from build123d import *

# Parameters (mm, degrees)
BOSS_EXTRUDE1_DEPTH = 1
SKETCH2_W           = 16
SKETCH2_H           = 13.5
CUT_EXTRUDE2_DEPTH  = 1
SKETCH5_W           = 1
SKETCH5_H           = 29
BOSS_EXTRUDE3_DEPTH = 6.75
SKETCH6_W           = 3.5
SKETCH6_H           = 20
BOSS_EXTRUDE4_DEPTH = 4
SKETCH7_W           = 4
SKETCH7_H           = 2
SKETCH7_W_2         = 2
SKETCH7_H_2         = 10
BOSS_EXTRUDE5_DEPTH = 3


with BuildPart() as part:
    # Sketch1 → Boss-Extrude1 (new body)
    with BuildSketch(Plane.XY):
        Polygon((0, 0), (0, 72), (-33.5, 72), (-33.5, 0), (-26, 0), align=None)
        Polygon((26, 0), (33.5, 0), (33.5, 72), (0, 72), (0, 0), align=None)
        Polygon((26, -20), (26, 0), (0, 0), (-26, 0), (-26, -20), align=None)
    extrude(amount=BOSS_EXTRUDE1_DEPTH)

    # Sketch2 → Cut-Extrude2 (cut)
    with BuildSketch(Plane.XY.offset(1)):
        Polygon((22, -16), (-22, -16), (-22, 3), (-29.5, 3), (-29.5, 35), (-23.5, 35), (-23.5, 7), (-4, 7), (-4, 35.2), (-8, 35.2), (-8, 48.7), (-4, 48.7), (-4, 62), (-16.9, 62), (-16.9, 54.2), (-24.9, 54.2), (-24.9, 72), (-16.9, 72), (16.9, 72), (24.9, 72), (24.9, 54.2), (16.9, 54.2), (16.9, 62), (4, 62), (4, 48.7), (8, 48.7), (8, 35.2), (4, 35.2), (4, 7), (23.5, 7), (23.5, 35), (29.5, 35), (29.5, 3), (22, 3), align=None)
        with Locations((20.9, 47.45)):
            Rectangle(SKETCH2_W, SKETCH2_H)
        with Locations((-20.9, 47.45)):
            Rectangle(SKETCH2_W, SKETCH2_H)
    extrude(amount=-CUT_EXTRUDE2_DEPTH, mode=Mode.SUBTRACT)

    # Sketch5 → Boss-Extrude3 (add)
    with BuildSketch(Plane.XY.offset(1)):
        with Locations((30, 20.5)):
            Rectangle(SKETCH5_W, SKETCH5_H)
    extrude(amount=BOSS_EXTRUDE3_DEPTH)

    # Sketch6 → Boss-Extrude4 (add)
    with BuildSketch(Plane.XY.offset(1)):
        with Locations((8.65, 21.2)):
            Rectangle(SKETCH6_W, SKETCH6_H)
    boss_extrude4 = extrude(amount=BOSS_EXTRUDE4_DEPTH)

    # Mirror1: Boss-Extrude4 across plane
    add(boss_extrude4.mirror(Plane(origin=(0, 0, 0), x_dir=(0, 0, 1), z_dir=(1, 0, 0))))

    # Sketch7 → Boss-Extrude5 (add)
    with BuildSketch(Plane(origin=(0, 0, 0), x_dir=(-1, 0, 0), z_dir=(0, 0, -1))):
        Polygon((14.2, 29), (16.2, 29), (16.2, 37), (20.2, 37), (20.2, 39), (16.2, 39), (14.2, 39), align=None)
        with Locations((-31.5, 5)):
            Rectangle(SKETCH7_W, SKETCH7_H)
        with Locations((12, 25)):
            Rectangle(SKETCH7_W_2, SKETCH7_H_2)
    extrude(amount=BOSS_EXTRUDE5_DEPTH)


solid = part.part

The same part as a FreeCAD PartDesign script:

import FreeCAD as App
import Part
import Sketcher
from FreeCAD import Vector
Q = App.Units.Quantity


def add_polygon(sketch, points):
    """Adds a closed chain of lines whose ends are joined by coincident constraints."""
    first, n = sketch.GeometryCount, len(points)
    for a, b in zip(points, points[1:] + points[:1]):
        sketch.addGeometry(Part.LineSegment(App.Vector(*a, 0), App.Vector(*b, 0)), False)
    for i in range(n):
        sketch.addConstraint(Sketcher.Constraint("Coincident", first + i, 2, first + (i + 1) % n, 1))

doc = App.newDocument("Part")
params = doc.addObject("Spreadsheet::Sheet", "Params")
for row, (alias, value) in enumerate([
    ("sketch1_width", "52 mm"),
    ("sketch1_width2", "67 mm"),
    ("sketch1_height", "72 mm"),
    ("sketch1_height2", "20 mm"),
    ("pad1_length", "1 mm"),
    ("sketch2_width", "44 mm"),
    ("sketch2_width2", "6 mm"),
    ("sketch2_width3", "4 mm"),
    ("sketch2_width4", "16 mm"),
    ("sketch2_height", "19 mm"),
    ("pocket1_length", "1 mm"),
    ("sketch3_width", "1 mm"),
    ("sketch3_height", "29 mm"),
    ("pad2_length", "6.75 mm"),
    ("sketch4_height", "20 mm"),
    ("sketch4_width", "3.5 mm"),
    ("pad3_length", "4 mm"),
    ("sketch5_width", "2 mm"),
    ("sketch5_width2", "4 mm"),
    ("sketch5_height", "8 mm"),
    ("pad4_length", "3 mm"),
], start=1):
    params.set(f"A{row}", alias)
    params.set(f"B{row}", "=" + value)
    params.setAlias(f"B{row}", alias)

body = doc.addObject("PartDesign::Body", "Body")

# Sketch on XY plane
sketch1 = body.newObject("Sketcher::SketchObject", "Sketch")
sketch1.AttachmentSupport = (doc.getObject("XY_Plane"), [""])
sketch1.MapMode = "FlatFace"
add_polygon(sketch1, [(-33.5, 72), (-33.5, 0), (-26, 0), (-26, -20), (26, -20), (26, 0), (33.5, 0), (33.5, 72)])  # lines 0-7
sketch1.addConstraint([
    Sketcher.Constraint("Vertical", 0),
    Sketcher.Constraint("Horizontal", 1),
    Sketcher.Constraint("Vertical", 2),
    Sketcher.Constraint("Horizontal", 3),
    Sketcher.Constraint("Vertical", 4),
    Sketcher.Constraint("Horizontal", 5),
    Sketcher.Constraint("Vertical", 6),
    Sketcher.Constraint("Horizontal", 7),
    Sketcher.Constraint("Symmetric", 1, 2, 4, 2, -1, 1),
    Sketcher.Constraint("Symmetric", 0, 2, 5, 2, -2),
    Sketcher.Constraint("DistanceX", 3, 1, 3, 2, Q("52 mm")),
    Sketcher.Constraint("DistanceX", 7, 2, 7, 1, Q("67 mm")),
    Sketcher.Constraint("DistanceY", 0, 2, 0, 1, Q("72 mm")),
    Sketcher.Constraint("DistanceY", 2, 2, 2, 1, Q("20 mm")),
])
sketch1.setExpression("Constraints[18]", "Params.sketch1_width")
sketch1.setExpression("Constraints[19]", "Params.sketch1_width2")
sketch1.setExpression("Constraints[20]", "Params.sketch1_height")
sketch1.setExpression("Constraints[21]", "Params.sketch1_height2")
pad1 = body.newObject("PartDesign::Pad", "Pad")
pad1.Profile = sketch1
pad1.setExpression("Length", "Params.pad1_length")

# Sketch on XY plane
sketch2 = body.newObject("Sketcher::SketchObject", "Sketch001")
sketch2.AttachmentSupport = (doc.getObject("XY_Plane"), [""])
sketch2.MapMode = "FlatFace"
sketch2.AttachmentOffset = App.Placement(Vector(0, 0, 1), App.Rotation())
add_polygon(sketch2, [(-22, -16), (22, -16), (22, 3), (29.5, 3), (29.5, 35), (23.5, 35), (23.5, 7), (4, 7), (4, 35.2), (8, 35.2), (8, 48.7), (4, 48.7), (4, 62), (16.9, 62), (16.9, 54.2), (12.9, 54.2), (12.9, 40.7), (28.9, 40.7), (28.9, 54.2), (24.9, 54.2), (24.9, 72), (-24.9, 72), (-24.9, 54.2), (-28.9, 54.2), (-28.9, 40.7), (-12.9, 40.7), (-12.9, 54.2), (-16.9, 54.2), (-16.9, 62), (-4, 62), (-4, 48.7), (-8, 48.7), (-8, 35.2), (-4, 35.2), (-4, 7), (-23.5, 7), (-23.5, 35), (-29.5, 35), (-29.5, 3), (-22, 3)])  # lines 0-39
sketch2.addConstraint([
    Sketcher.Constraint("Horizontal", 0),
    Sketcher.Constraint("Vertical", 1),
    Sketcher.Constraint("Horizontal", 2),
    Sketcher.Constraint("Vertical", 3),
    Sketcher.Constraint("Horizontal", 4),
    Sketcher.Constraint("Vertical", 5),
    Sketcher.Constraint("Horizontal", 6),
    Sketcher.Constraint("Vertical", 7),
    Sketcher.Constraint("Horizontal", 8),
    Sketcher.Constraint("Vertical", 9),
    Sketcher.Constraint("Horizontal", 10),
    Sketcher.Constraint("Vertical", 11),
    Sketcher.Constraint("Horizontal", 12),
    Sketcher.Constraint("Vertical", 13),
    Sketcher.Constraint("Horizontal", 14),
    Sketcher.Constraint("Vertical", 15),
    Sketcher.Constraint("Horizontal", 16),
    Sketcher.Constraint("Vertical", 17),
    Sketcher.Constraint("Horizontal", 18),
    Sketcher.Constraint("Vertical", 19),
    Sketcher.Constraint("Horizontal", 20),
    Sketcher.Constraint("Vertical", 21),
    Sketcher.Constraint("Horizontal", 22),
    Sketcher.Constraint("Vertical", 23),
    Sketcher.Constraint("Horizontal", 24),
    Sketcher.Constraint("Vertical", 25),
    Sketcher.Constraint("Horizontal", 26),
    Sketcher.Constraint("Vertical", 27),
    Sketcher.Constraint("Horizontal", 28),
    Sketcher.Constraint("Vertical", 29),
    Sketcher.Constraint("Horizontal", 30),
    Sketcher.Constraint("Vertical", 31),
    Sketcher.Constraint("Horizontal", 32),
    Sketcher.Constraint("Vertical", 33),
    Sketcher.Constraint("Horizontal", 34),
    Sketcher.Constraint("Vertical", 35),
    Sketcher.Constraint("Horizontal", 36),
    Sketcher.Constraint("Vertical", 37),
    Sketcher.Constraint("Horizontal", 38),
    Sketcher.Constraint("Vertical", 39),
    Sketcher.Constraint("Symmetric", 18, 2, 21, 2, -2),
    Sketcher.Constraint("Symmetric", 16, 2, 23, 2, -2),
    Sketcher.Constraint("Symmetric", 14, 2, 25, 2, -2),
    Sketcher.Constraint("Symmetric", 12, 2, 27, 2, -2),
    Sketcher.Constraint("Symmetric", 10, 2, 29, 2, -2),
    Sketcher.Constraint("Symmetric", 8, 2, 31, 2, -2),
    Sketcher.Constraint("Symmetric", 6, 2, 33, 2, -2),
    Sketcher.Constraint("Symmetric", 4, 2, 35, 2, -2),
    Sketcher.Constraint("Symmetric", 2, 2, 37, 2, -2),
    Sketcher.Constraint("Horizontal", 14, 2, 17, 2),
    Sketcher.Constraint("Vertical", 7, 2, 10, 2),
    Sketcher.Constraint("Equal", 10, 14),
    Sketcher.Constraint("Equal", 14, 18),
    Sketcher.Constraint("Equal", 2, 38),
    Sketcher.Constraint("Equal", 9, 15),
    Sketcher.Constraint("DistanceX", 0, 1, 0, 2, Q("44 mm")),
    Sketcher.Constraint("DistanceX", 4, 2, 4, 1, Q("6 mm")),
    Sketcher.Constraint("DistanceX", 8, 1, 8, 2, Q("4 mm")),
    Sketcher.Constraint("DistanceX", 16, 1, 16, 2, Q("16 mm")),
    Sketcher.Constraint("DistanceY", 1, 1, 1, 2, Q("19 mm")),
    Sketcher.Constraint("DistanceY", 3, 1, 3, 2, Q("32 mm")),
    Sketcher.Constraint("DistanceY", 5, 2, 5, 1, Q("28 mm")),
    Sketcher.Constraint("DistanceX", 2, 1, 2, 2, Q("7.5 mm")),
    Sketcher.Constraint("DistanceX", 6, 2, 6, 1, Q("19.5 mm")),
    Sketcher.Constraint("DistanceX", 12, 1, 12, 2, Q("12.9 mm")),
    Sketcher.Constraint("DistanceY", 7, 1, 7, 2, Q("28.2 mm")),
    Sketcher.Constraint("DistanceY", 9, 1, 9, 2, Q("13.5 mm")),
    Sketcher.Constraint("DistanceY", 11, 1, 11, 2, Q("13.3 mm")),
    Sketcher.Constraint("DistanceY", 13, 2, 13, 1, Q("7.8 mm")),
    Sketcher.Constraint("DistanceY", 19, 1, 19, 2, Q("17.8 mm")),
    Sketcher.Constraint("DistanceY", 0, 2, -1, 1, Q("16 mm")),
])
sketch2.setExpression("Constraints[95]", "Params.sketch2_width")
sketch2.setExpression("Constraints[96]", "Params.sketch2_width2")
sketch2.setExpression("Constraints[97]", "Params.sketch2_width3")
sketch2.setExpression("Constraints[98]", "Params.sketch2_width4")
sketch2.setExpression("Constraints[99]", "Params.sketch2_height")
pocket1 = body.newObject("PartDesign::Pocket", "Pocket")
pocket1.Profile = sketch2
pocket1.setExpression("Length", "Params.pocket1_length")

# Sketch on XY plane
sketch3 = body.newObject("Sketcher::SketchObject", "Sketch002")
sketch3.AttachmentSupport = (doc.getObject("XY_Plane"), [""])
sketch3.MapMode = "FlatFace"
sketch3.AttachmentOffset = App.Placement(Vector(0, 0, 1), App.Rotation())
add_polygon(sketch3, [(29.5, 35), (29.5, 6), (30.5, 6), (30.5, 35)])  # lines 0-3
sketch3.addConstraint([
    Sketcher.Constraint("Vertical", 0),
    Sketcher.Constraint("Horizontal", 1),
    Sketcher.Constraint("Vertical", 2),
    Sketcher.Constraint("Horizontal", 3),
    Sketcher.Constraint("DistanceX", 1, 1, 1, 2, Q("1 mm")),
    Sketcher.Constraint("DistanceY", 0, 2, 0, 1, Q("29 mm")),
    Sketcher.Constraint("DistanceY", -1, 1, 0, 2, Q("6 mm")),
    Sketcher.Constraint("DistanceX", -1, 1, 0, 2, Q("29.5 mm")),
])
sketch3.setExpression("Constraints[8]", "Params.sketch3_width")
sketch3.setExpression("Constraints[9]", "Params.sketch3_height")
pad2 = body.newObject("PartDesign::Pad", "Pad001")
pad2.Profile = sketch3
pad2.setExpression("Length", "Params.pad2_length")

# Sketch on XY plane
sketch4 = body.newObject("Sketcher::SketchObject", "Sketch003")
sketch4.AttachmentSupport = (doc.getObject("XY_Plane"), [""])
sketch4.MapMode = "FlatFace"
sketch4.AttachmentOffset = App.Placement(Vector(0, 0, 1), App.Rotation())
add_polygon(sketch4, [(6.9, 31.2), (6.9, 11.2), (10.4, 11.2), (10.4, 31.2)])  # lines 0-3
sketch4.addConstraint([
    Sketcher.Constraint("Vertical", 0),
    Sketcher.Constraint("Horizontal", 1),
    Sketcher.Constraint("Vertical", 2),
    Sketcher.Constraint("Horizontal", 3),
    Sketcher.Constraint("DistanceY", 0, 2, 0, 1, Q("20 mm")),
    Sketcher.Constraint("DistanceX", 1, 1, 1, 2, Q("3.5 mm")),
    Sketcher.Constraint("DistanceX", -1, 1, 0, 2, Q("6.9 mm")),
    Sketcher.Constraint("DistanceY", -1, 1, 0, 2, Q("11.2 mm")),
])
sketch4.setExpression("Constraints[8]", "Params.sketch4_height")
sketch4.setExpression("Constraints[9]", "Params.sketch4_width")
pad3 = body.newObject("PartDesign::Pad", "Pad002")
pad3.Profile = sketch4
pad3.setExpression("Length", "Params.pad3_length")
doc.recompute()

mirrored = body.newObject("PartDesign::Mirrored", "Mirrored")
mirrored.Originals = [pad3]
mirrored.MirrorPlane = (doc.getObject("YZ_Plane"), [""])
body.Tip = mirrored

# Sketch on XY plane
sketch5 = body.newObject("Sketcher::SketchObject", "Sketch004")
sketch5.AttachmentSupport = (doc.getObject("XY_Plane"), [""])
sketch5.MapMode = "FlatFace"
add_polygon(sketch5, [(-14.2, 29), (-16.2, 29), (-16.2, 37), (-20.2, 37), (-20.2, 39), (-14.2, 39)])  # lines 0-5
add_polygon(sketch5, [(33.5, 6), (33.5, 4), (29.5, 4), (29.5, 6)])  # lines 6-9
add_polygon(sketch5, [(-11, 30), (-11, 20), (-13, 20), (-13, 30)])  # lines 10-13
sketch5.addConstraint([
    Sketcher.Constraint("Horizontal", 0),
    Sketcher.Constraint("Vertical", 1),
    Sketcher.Constraint("Horizontal", 2),
    Sketcher.Constraint("Vertical", 3),
    Sketcher.Constraint("Horizontal", 4),
    Sketcher.Constraint("Vertical", 5),
    Sketcher.Constraint("Vertical", 6),
    Sketcher.Constraint("Horizontal", 7),
    Sketcher.Constraint("Vertical", 8),
    Sketcher.Constraint("Horizontal", 9),
    Sketcher.Constraint("Vertical", 10),
    Sketcher.Constraint("Horizontal", 11),
    Sketcher.Constraint("Vertical", 12),
    Sketcher.Constraint("Horizontal", 13),
    Sketcher.Constraint("Equal", 2, 7),
    Sketcher.Constraint("Equal", 0, 11),
    Sketcher.Constraint("Equal", 13, 3),
    Sketcher.Constraint("Equal", 3, 6),
    Sketcher.Constraint("Equal", 5, 10),
    Sketcher.Constraint("DistanceX", 0, 2, 0, 1, Q("2 mm")),
    Sketcher.Constraint("DistanceX", 2, 2, 2, 1, Q("4 mm")),
    Sketcher.Constraint("DistanceY", 1, 1, 1, 2, Q("8 mm")),
    Sketcher.Constraint("DistanceY", -1, 1, 0, 2, Q("29 mm")),
    Sketcher.Constraint("DistanceY", -1, 1, 6, 2, Q("4 mm")),
    Sketcher.Constraint("DistanceX", 10, 2, -1, 1, Q("11 mm")),
    Sketcher.Constraint("DistanceY", -1, 1, 10, 2, Q("20 mm")),
    Sketcher.Constraint("DistanceX", 0, 2, -1, 1, Q("16.2 mm")),
    Sketcher.Constraint("DistanceX", -1, 1, 6, 2, Q("33.5 mm")),
])
sketch5.setExpression("Constraints[33]", "Params.sketch5_width")
sketch5.setExpression("Constraints[34]", "Params.sketch5_width2")
sketch5.setExpression("Constraints[35]", "Params.sketch5_height")
pad4 = body.newObject("PartDesign::Pad", "Pad003")
pad4.Profile = sketch5
pad4.setExpression("Length", "Params.pad4_length")
pad4.Reversed = True

doc.recompute()
